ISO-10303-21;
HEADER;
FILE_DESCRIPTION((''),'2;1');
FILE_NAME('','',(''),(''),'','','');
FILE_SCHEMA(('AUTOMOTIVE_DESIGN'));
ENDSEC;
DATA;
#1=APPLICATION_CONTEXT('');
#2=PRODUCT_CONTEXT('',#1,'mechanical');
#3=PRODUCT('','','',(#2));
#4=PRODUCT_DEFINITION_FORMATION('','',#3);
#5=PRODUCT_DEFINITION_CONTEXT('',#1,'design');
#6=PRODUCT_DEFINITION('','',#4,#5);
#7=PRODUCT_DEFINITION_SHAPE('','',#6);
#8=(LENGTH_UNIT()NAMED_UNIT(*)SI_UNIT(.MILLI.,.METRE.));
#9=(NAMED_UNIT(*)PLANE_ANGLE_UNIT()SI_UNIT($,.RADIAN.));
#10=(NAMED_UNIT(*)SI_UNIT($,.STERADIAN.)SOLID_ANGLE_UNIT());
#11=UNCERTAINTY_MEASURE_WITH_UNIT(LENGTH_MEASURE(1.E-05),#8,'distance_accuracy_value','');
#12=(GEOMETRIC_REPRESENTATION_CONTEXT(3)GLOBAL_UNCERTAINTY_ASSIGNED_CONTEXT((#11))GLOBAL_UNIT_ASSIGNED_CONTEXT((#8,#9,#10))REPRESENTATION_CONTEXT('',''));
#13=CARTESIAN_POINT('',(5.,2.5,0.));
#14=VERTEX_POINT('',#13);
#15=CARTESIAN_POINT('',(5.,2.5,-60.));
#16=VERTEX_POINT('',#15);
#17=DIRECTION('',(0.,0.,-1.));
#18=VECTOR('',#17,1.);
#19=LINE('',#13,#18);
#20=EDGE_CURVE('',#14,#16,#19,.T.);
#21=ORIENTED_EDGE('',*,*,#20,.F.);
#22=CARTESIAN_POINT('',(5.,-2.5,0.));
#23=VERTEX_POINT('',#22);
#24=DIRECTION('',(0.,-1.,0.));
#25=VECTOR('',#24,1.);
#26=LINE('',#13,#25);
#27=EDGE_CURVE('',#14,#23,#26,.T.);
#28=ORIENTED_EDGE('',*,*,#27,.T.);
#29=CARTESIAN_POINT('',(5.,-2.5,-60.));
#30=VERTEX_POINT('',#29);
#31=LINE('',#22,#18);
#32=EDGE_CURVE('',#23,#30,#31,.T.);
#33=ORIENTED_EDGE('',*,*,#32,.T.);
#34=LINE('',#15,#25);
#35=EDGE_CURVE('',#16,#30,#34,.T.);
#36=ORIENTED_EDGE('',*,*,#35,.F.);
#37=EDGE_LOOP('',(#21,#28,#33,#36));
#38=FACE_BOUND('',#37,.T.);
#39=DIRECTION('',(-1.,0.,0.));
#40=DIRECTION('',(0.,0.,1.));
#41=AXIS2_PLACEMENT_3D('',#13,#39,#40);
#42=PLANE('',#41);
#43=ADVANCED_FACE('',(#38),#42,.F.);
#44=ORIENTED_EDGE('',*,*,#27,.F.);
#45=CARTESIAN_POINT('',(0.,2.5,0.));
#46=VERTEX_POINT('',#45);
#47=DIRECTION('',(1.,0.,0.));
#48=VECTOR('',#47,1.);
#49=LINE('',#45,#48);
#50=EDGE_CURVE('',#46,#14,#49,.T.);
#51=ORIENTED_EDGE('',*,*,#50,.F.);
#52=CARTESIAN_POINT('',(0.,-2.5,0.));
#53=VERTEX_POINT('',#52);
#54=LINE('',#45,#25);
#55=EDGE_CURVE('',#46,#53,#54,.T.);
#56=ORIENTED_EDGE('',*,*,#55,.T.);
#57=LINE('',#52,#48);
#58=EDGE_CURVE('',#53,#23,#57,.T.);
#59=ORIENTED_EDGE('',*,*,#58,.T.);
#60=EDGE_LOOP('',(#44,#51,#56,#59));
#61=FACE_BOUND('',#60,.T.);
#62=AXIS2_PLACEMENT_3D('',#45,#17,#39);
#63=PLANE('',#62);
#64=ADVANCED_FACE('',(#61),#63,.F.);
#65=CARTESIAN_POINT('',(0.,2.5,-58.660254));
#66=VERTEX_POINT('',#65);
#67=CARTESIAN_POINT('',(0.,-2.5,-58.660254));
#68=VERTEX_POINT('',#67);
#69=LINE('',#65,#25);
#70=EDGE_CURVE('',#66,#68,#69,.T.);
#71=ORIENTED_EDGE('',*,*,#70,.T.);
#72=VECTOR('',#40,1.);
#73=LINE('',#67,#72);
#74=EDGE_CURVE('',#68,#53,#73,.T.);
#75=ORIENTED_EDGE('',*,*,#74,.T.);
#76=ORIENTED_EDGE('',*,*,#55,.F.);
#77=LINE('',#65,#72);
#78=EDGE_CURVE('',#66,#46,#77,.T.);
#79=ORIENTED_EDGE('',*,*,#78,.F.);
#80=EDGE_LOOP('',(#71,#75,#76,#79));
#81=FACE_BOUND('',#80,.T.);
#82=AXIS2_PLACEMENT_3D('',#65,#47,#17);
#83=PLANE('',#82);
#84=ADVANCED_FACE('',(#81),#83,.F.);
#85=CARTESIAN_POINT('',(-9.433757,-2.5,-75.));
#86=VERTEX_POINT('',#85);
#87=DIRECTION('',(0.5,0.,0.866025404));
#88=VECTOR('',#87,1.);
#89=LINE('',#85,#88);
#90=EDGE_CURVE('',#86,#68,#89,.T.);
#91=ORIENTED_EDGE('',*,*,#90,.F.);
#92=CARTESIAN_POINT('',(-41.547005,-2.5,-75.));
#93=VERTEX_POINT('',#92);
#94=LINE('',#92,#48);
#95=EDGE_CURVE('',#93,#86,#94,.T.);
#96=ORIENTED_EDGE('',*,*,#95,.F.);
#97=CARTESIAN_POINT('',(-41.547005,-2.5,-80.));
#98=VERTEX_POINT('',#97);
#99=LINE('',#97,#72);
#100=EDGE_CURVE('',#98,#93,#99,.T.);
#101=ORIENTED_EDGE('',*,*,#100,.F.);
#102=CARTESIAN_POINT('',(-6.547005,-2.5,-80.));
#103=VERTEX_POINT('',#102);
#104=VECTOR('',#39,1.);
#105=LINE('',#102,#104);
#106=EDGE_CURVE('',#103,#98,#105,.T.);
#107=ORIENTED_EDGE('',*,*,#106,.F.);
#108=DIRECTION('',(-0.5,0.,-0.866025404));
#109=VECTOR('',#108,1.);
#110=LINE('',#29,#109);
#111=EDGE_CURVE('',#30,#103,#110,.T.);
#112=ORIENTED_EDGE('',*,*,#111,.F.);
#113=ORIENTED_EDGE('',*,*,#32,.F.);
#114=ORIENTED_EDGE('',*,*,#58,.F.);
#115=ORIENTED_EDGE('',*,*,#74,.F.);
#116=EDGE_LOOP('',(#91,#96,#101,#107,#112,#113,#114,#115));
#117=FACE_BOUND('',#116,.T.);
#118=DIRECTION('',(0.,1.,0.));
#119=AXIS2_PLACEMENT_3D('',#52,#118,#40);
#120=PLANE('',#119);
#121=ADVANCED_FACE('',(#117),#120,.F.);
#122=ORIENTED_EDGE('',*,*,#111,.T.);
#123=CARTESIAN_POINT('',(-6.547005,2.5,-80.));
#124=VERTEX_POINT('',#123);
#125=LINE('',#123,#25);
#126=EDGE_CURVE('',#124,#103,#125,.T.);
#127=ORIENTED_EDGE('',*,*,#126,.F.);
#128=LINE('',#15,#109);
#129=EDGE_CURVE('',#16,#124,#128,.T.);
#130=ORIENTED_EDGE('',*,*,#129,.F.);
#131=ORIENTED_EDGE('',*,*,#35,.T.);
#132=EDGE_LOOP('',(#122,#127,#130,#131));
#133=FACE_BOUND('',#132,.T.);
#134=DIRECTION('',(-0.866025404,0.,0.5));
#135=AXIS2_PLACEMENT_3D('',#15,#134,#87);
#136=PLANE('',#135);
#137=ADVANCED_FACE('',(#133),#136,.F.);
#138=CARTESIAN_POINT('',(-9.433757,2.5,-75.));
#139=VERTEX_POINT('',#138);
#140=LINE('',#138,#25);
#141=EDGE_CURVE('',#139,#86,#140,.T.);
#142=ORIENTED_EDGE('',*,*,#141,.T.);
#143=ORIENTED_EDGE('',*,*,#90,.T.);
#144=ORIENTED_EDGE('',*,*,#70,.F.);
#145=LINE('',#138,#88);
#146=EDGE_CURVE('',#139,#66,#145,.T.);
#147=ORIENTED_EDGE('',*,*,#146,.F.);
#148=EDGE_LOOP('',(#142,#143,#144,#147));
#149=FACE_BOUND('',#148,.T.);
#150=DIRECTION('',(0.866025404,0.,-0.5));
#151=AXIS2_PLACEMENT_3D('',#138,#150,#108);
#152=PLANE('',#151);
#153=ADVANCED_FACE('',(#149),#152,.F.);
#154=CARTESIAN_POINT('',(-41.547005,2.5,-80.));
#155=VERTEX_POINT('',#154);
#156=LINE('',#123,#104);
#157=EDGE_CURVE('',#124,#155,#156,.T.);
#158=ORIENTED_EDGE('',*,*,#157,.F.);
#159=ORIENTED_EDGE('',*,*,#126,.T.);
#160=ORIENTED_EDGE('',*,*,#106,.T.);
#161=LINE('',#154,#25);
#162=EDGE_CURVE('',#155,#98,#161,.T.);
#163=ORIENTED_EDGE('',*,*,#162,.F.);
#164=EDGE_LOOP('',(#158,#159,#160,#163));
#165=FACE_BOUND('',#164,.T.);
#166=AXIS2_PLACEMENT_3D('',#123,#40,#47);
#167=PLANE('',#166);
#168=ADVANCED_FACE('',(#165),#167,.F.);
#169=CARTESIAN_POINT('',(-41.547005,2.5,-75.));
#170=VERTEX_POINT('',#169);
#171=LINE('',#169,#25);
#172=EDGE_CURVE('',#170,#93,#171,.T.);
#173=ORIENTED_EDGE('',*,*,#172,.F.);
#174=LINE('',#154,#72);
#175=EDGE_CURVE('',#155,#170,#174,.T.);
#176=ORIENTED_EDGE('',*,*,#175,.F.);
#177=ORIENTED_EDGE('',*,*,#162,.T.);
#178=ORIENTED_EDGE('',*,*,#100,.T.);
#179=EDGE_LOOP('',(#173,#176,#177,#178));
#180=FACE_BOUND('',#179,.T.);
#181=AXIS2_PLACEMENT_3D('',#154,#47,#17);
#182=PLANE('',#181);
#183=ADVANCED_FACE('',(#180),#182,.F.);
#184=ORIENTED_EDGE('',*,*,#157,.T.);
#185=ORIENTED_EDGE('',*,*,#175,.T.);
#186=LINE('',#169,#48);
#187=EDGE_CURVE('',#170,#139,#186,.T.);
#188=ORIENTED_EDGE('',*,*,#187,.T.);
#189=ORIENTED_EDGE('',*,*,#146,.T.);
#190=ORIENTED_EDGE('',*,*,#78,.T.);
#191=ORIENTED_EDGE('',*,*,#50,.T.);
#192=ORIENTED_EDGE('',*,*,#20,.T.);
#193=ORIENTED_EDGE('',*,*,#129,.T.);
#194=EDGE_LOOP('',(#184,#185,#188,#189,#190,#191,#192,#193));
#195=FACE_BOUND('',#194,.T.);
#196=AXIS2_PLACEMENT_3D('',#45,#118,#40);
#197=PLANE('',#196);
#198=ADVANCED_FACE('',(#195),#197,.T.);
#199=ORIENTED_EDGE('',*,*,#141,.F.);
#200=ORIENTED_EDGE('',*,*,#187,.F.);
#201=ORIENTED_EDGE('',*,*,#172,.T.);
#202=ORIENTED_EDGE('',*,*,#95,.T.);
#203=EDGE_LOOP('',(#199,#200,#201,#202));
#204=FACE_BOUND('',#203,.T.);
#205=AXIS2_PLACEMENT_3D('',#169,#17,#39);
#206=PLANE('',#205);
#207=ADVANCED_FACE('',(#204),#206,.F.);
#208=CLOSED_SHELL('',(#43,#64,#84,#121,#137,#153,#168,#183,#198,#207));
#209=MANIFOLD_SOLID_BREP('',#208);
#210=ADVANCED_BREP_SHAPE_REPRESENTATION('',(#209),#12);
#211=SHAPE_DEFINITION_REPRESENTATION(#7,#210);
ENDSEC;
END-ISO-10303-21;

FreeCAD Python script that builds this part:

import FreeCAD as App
import Part
import Sketcher

V = App.Vector
Q = App.Units.Quantity

doc = App.newDocument("Part")
body = doc.addObject("PartDesign::Body", "Body")

# Sketch on XZ plane
sketch1 = body.newObject("Sketcher::SketchObject", "Sketch")
sketch1.AttachmentSupport = (doc.getObject("XZ_Plane"), [""])
sketch1.MapMode = "FlatFace"
sketch1.addGeometry([
    Part.LineSegment(V(-42, -80, 0), V(-42, -75, 0)),  # 0
    Part.LineSegment(V(-42, -75, 0), V(-9, -75, 0)),  # 1
    Part.LineSegment(V(-9, -75, 0), V(0, -59, 0)),  # 2
    Part.LineSegment(V(0, -59, 0), V(0, 0, 0)),  # 3
    Part.LineSegment(V(0, 0, 0), V(5, 0, 0)),  # 4
    Part.LineSegment(V(5, 0, 0), V(5, -60, 0)),  # 5
    Part.LineSegment(V(5, -60, 0), V(-7, -80, 0)),  # 6
    Part.LineSegment(V(-7, -80, 0), V(-42, -80, 0)),  # 7
], False)
sketch1.addConstraint([
    Sketcher.Constraint("Coincident", 0, 2, 1, 1),
    Sketcher.Constraint("Coincident", 1, 2, 2, 1),
    Sketcher.Constraint("Coincident", 2, 2, 3, 1),
    Sketcher.Constraint("Coincident", 3, 2, 4, 1),
    Sketcher.Constraint("Coincident", 4, 2, 5, 1),
    Sketcher.Constraint("Coincident", 5, 2, 6, 1),
    Sketcher.Constraint("Coincident", 6, 2, 7, 1),
    Sketcher.Constraint("Coincident", 7, 2, 0, 1),
    Sketcher.Constraint("Vertical", 0),
    Sketcher.Constraint("Horizontal", 1),
    Sketcher.Constraint("Vertical", 3),
    Sketcher.Constraint("Horizontal", 4),
    Sketcher.Constraint("Vertical", 5),
    Sketcher.Constraint("Horizontal", 7),
    Sketcher.Constraint("Coincident", 3, 2, -1, 1),
    Sketcher.Constraint("Parallel", 2, 6),
    Sketcher.Constraint("Equal", 4, 0),
    Sketcher.Constraint("DistanceX", 4, 1, 4, 2, Q("5 mm")),
    Sketcher.Constraint("DistanceX", 7, 2, 7, 1, Q("35 mm")),
    Sketcher.Constraint("DistanceY", 5, 2, 5, 1, Q("60 mm")),
    Sketcher.Constraint("Angle", 2, Q("60 deg")),
    Sketcher.Constraint("DistanceY", 0, 2, -1, 1, Q("75 mm")),
    Sketcher.Constraint("DistanceX", 1, 1, 1, 2, Q("32.113249 mm")),
])
pad1 = body.newObject("PartDesign::Pad", "Pad")
pad1.Profile = sketch1
pad1.Length = 5
pad1.Midplane = True

doc.recompute()
